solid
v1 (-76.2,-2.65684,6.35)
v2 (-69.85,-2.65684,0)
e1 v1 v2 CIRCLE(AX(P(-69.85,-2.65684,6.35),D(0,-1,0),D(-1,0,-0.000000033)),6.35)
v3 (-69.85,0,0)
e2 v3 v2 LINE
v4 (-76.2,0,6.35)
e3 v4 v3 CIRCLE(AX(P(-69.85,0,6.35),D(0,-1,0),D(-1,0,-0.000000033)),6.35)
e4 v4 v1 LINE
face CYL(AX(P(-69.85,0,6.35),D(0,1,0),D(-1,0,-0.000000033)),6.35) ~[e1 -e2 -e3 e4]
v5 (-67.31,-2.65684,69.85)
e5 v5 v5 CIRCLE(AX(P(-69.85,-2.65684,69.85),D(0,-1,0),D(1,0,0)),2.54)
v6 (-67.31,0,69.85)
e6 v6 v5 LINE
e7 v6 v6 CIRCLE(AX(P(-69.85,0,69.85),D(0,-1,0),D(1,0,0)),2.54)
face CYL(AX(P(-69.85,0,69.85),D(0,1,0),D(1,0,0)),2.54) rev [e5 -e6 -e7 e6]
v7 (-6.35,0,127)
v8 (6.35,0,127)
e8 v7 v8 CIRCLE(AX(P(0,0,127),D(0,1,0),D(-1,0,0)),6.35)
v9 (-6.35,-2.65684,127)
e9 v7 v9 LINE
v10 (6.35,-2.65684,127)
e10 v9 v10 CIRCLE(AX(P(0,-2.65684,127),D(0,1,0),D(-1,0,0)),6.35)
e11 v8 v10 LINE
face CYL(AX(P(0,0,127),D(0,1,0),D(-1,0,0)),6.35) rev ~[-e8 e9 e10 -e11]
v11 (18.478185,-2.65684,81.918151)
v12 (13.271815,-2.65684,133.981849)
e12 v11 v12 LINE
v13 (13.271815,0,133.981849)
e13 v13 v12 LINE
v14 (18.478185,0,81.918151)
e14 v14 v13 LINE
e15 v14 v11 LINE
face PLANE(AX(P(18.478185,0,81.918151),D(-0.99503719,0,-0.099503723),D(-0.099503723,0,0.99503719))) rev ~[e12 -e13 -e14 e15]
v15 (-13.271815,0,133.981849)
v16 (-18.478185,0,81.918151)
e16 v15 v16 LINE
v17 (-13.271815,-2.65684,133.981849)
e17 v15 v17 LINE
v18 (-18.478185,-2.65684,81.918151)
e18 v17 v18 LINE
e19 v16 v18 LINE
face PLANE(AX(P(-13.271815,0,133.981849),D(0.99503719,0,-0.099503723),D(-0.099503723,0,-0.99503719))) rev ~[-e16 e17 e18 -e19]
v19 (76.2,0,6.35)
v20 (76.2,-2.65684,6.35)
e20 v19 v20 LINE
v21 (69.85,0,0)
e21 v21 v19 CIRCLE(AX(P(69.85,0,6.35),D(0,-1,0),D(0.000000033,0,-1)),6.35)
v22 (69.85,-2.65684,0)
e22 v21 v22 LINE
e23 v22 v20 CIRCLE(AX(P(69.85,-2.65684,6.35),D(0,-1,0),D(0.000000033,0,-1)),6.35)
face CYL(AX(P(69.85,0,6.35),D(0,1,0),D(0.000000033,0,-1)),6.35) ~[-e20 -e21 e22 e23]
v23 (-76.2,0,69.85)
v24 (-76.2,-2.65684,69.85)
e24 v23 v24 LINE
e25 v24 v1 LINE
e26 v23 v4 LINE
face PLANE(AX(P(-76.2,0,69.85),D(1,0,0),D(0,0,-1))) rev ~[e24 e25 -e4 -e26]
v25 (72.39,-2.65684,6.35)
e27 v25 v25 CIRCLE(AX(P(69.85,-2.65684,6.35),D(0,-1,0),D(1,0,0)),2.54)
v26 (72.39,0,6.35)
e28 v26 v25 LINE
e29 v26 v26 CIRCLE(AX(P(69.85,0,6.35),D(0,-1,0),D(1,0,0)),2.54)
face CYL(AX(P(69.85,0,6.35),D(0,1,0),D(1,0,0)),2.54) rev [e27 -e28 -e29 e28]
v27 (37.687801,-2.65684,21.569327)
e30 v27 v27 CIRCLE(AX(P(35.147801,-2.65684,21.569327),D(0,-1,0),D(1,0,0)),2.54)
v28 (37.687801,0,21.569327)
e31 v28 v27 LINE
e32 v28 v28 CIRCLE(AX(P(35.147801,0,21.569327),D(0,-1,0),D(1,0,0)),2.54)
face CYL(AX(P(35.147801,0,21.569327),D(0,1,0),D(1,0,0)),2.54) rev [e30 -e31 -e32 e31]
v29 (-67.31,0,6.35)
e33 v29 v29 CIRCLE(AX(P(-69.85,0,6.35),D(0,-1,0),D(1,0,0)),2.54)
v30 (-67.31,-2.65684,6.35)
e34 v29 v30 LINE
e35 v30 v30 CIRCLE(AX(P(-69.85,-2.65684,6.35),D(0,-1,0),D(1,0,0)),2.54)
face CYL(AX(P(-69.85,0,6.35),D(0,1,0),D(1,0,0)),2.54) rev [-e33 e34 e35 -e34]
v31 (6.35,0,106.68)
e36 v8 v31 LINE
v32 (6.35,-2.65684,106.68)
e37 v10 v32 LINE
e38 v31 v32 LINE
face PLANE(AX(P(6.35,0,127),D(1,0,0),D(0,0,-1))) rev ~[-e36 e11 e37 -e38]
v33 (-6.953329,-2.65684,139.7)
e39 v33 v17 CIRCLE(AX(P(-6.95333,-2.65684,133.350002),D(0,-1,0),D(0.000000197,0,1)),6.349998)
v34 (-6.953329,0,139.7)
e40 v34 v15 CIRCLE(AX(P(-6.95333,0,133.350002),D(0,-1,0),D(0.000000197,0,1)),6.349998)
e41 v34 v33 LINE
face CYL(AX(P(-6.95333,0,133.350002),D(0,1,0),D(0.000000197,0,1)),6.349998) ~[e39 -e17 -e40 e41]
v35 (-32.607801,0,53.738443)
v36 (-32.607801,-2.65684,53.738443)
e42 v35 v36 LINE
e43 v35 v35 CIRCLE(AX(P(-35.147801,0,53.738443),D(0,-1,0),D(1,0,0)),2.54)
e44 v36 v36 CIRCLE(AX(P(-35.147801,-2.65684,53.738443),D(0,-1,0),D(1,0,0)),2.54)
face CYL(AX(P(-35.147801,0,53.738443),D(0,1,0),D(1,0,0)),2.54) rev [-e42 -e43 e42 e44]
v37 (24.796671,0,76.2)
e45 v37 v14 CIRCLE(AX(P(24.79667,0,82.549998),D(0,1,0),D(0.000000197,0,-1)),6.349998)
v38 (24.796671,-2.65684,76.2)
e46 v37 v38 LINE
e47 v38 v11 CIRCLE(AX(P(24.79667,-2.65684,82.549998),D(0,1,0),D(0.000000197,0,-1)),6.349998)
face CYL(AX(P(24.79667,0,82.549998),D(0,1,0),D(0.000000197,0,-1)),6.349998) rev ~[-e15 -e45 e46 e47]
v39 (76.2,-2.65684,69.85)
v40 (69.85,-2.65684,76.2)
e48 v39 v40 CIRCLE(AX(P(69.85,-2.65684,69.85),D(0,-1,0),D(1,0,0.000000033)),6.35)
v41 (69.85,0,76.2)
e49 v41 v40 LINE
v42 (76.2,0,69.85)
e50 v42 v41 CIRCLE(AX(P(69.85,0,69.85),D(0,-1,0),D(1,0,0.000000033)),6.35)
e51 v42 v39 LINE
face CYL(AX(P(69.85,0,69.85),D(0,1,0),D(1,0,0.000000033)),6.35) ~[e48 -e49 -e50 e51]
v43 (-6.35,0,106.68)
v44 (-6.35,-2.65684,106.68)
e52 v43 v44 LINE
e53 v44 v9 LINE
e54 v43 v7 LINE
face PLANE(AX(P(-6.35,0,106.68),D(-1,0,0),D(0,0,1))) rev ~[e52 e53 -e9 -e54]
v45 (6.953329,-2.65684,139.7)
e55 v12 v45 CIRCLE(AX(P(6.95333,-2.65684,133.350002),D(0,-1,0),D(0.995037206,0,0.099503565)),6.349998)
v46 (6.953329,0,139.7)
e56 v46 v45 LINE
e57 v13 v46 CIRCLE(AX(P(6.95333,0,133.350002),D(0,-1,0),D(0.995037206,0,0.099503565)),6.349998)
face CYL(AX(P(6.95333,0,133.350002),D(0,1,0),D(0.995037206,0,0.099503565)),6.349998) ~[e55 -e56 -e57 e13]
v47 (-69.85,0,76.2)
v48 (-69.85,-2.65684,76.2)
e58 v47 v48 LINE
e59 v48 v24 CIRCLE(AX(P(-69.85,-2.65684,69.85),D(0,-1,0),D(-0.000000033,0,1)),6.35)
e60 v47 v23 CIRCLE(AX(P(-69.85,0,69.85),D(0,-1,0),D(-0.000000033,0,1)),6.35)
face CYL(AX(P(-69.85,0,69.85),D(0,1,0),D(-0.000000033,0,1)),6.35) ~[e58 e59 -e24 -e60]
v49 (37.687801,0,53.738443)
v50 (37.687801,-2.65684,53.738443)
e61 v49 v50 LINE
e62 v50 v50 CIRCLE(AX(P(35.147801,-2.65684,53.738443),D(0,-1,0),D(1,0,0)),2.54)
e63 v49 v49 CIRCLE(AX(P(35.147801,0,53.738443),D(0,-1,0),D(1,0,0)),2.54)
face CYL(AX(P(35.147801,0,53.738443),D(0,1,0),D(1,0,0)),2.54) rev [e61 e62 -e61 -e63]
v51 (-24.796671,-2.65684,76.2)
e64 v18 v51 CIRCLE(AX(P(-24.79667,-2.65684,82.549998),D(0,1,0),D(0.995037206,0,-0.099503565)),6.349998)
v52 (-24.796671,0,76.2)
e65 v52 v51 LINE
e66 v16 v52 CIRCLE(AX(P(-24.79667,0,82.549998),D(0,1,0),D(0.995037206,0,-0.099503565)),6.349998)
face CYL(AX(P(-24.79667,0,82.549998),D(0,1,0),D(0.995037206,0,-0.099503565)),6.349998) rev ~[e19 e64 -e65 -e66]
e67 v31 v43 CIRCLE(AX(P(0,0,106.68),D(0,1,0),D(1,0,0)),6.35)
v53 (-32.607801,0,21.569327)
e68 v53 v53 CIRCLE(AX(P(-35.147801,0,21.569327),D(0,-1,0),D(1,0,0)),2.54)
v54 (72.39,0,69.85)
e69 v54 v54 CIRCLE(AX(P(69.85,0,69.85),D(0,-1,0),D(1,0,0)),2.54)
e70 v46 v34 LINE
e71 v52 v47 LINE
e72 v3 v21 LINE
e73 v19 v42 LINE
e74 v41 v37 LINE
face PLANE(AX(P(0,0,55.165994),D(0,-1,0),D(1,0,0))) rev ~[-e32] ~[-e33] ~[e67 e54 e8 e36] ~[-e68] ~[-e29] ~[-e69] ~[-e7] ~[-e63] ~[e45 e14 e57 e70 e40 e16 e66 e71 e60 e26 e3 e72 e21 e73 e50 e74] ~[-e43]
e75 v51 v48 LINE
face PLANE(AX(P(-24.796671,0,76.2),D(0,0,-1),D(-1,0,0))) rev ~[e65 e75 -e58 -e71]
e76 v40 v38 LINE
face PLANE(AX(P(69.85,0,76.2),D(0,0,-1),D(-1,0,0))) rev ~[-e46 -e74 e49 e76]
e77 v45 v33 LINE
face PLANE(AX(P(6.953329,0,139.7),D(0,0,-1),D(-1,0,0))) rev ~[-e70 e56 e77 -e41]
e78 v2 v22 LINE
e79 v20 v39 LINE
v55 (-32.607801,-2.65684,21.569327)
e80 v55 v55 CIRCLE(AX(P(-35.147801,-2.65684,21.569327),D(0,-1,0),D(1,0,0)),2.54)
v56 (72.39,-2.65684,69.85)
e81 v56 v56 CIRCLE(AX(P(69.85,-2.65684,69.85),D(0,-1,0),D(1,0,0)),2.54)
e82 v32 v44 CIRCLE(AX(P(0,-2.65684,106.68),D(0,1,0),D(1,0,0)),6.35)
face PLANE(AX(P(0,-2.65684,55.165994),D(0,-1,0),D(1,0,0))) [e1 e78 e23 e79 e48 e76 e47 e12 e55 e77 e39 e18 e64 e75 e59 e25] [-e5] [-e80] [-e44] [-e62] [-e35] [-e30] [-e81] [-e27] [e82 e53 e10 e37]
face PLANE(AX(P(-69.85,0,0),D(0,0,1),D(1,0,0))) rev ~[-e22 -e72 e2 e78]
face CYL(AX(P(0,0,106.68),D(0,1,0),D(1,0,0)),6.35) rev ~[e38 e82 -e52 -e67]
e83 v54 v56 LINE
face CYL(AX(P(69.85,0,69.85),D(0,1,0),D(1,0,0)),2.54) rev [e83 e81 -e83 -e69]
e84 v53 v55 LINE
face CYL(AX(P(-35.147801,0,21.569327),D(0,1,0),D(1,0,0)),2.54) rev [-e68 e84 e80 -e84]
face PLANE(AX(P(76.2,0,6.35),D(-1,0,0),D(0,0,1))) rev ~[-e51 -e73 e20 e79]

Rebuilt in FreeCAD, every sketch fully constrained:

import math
import FreeCAD as App
import Part
import Sketcher
Q = App.Units.Quantity

doc = App.newDocument("Part")
body = doc.addObject("PartDesign::Body", "Body")

# Sketch on XZ plane
sketch1 = doc.addObject("Sketcher::SketchObject", "Sketch")
body.addObject(sketch1)
sketch1.AttachmentSupport = (doc.XZ_Plane, [""])
sketch1.MapMode = "FlatFace"
sketch1.addGeometry(Part.LineSegment(App.Vector(-69.8, 0, 0), App.Vector(69.8, 0, 0)), False)
sketch1.addGeometry(Part.ArcOfCircle(Part.Circle(App.Vector(69.8, 6.4, 0), App.Vector(0, 0, 1), 6.4), math.radians(-90), math.radians(0)), False)
sketch1.addGeometry(Part.LineSegment(App.Vector(76.2, 6.3, 0), App.Vector(76.2, 69.8, 0)), False)
sketch1.addGeometry(Part.ArcOfCircle(Part.Circle(App.Vector(69.8, 69.8, 0), App.Vector(0, 0, 1), 6.4), math.radians(0), math.radians(90)), False)
sketch1.addGeometry(Part.LineSegment(App.Vector(69.8, 76.2, 0), App.Vector(24.8, 76.2, 0)), False)
sketch1.addGeometry(Part.ArcOfCircle(Part.Circle(App.Vector(24.8, 82.5, 0), App.Vector(0, 0, 1), 6.3), math.radians(-174), math.radians(-90)), False)
sketch1.addGeometry(Part.LineSegment(App.Vector(18.5, 81.9, 0), App.Vector(13.3, 134, 0)), False)
sketch1.addGeometry(Part.ArcOfCircle(Part.Circle(App.Vector(7, 133.4, 0), App.Vector(0, 0, 1), 6.3), math.radians(6), math.radians(90)), False)
sketch1.addGeometry(Part.LineSegment(App.Vector(7, 139.7, 0), App.Vector(-7, 139.7, 0)), False)
sketch1.addGeometry(Part.ArcOfCircle(Part.Circle(App.Vector(-7, 133.4, 0), App.Vector(0, 0, 1), 6.3), math.radians(90), math.radians(174)), False)
sketch1.addGeometry(Part.LineSegment(App.Vector(-13.3, 134, 0), App.Vector(-18.5, 81.9, 0)), False)
sketch1.addGeometry(Part.ArcOfCircle(Part.Circle(App.Vector(-24.8, 82.5, 0), App.Vector(0, 0, 1), 6.3), math.radians(-90), math.radians(-6)), False)
sketch1.addGeometry(Part.LineSegment(App.Vector(-24.8, 76.2, 0), App.Vector(-69.8, 76.2, 0)), False)
sketch1.addGeometry(Part.ArcOfCircle(Part.Circle(App.Vector(-69.8, 69.8, 0), App.Vector(0, 0, 1), 6.4), math.radians(90), math.radians(180)), False)
sketch1.addGeometry(Part.LineSegment(App.Vector(-76.2, 69.8, 0), App.Vector(-76.2, 6.3, 0)), False)
sketch1.addGeometry(Part.ArcOfCircle(Part.Circle(App.Vector(-69.8, 6.4, 0), App.Vector(0, 0, 1), 6.4), math.radians(-180), math.radians(-90)), False)
sketch1.addGeometry(Part.Circle(App.Vector(-69.8, 6.3, 0), App.Vector(0, 0, 1), 2.5), False)
sketch1.addGeometry(Part.Circle(App.Vector(-35.1, 21.6, 0), App.Vector(0, 0, 1), 2.5), False)
sketch1.addGeometry(Part.Circle(App.Vector(-35.1, 53.7, 0), App.Vector(0, 0, 1), 2.5), False)
sketch1.addGeometry(Part.Circle(App.Vector(35.1, 21.6, 0), App.Vector(0, 0, 1), 2.5), False)
sketch1.addGeometry(Part.Circle(App.Vector(69.8, 6.3, 0), App.Vector(0, 0, 1), 2.5), False)
sketch1.addGeometry(Part.Circle(App.Vector(35.1, 53.7, 0), App.Vector(0, 0, 1), 2.5), False)
sketch1.addGeometry(Part.Circle(App.Vector(-69.8, 69.8, 0), App.Vector(0, 0, 1), 2.5), False)
sketch1.addGeometry(Part.Circle(App.Vector(69.8, 69.8, 0), App.Vector(0, 0, 1), 2.5), False)
sketch1.addGeometry(Part.ArcOfCircle(Part.Circle(App.Vector(0, 106.7, 0), App.Vector(0, 0, 1), 6.3), math.radians(180), math.radians(360)), False)
sketch1.addGeometry(Part.LineSegment(App.Vector(-6.3, 106.7, 0), App.Vector(-6.3, 127, 0)), False)
sketch1.addGeometry(Part.ArcOfCircle(Part.Circle(App.Vector(0, 127, 0), App.Vector(0, 0, 1), 6.3), math.radians(0), math.radians(180)), False)
sketch1.addGeometry(Part.LineSegment(App.Vector(6.3, 127, 0), App.Vector(6.3, 106.7, 0)), False)
sketch1.addConstraint(Sketcher.Constraint("Tangent", 0, 2, 1, 1))
sketch1.addConstraint(Sketcher.Constraint("Tangent", 1, 2, 2, 1))
sketch1.addConstraint(Sketcher.Constraint("Tangent", 2, 2, 3, 1))
sketch1.addConstraint(Sketcher.Constraint("Tangent", 3, 2, 4, 1))
sketch1.addConstraint(Sketcher.Constraint("Tangent", 4, 2, 5, 2))
sketch1.addConstraint(Sketcher.Constraint("Tangent", 5, 1, 6, 1))
sketch1.addConstraint(Sketcher.Constraint("Tangent", 6, 2, 7, 1))
sketch1.addConstraint(Sketcher.Constraint("Tangent", 7, 2, 8, 1))
sketch1.addConstraint(Sketcher.Constraint("Tangent", 8, 2, 9, 1))
sketch1.addConstraint(Sketcher.Constraint("Tangent", 9, 2, 10, 1))
sketch1.addConstraint(Sketcher.Constraint("Tangent", 10, 2, 11, 2))
sketch1.addConstraint(Sketcher.Constraint("Tangent", 11, 1, 12, 1))
sketch1.addConstraint(Sketcher.Constraint("Tangent", 12, 2, 13, 1))
sketch1.addConstraint(Sketcher.Constraint("Tangent", 13, 2, 14, 1))
sketch1.addConstraint(Sketcher.Constraint("Tangent", 14, 2, 15, 1))
sketch1.addConstraint(Sketcher.Constraint("Tangent", 15, 2, 0, 1))
sketch1.addConstraint(Sketcher.Constraint("Tangent", 24, 1, 25, 1))
sketch1.addConstraint(Sketcher.Constraint("Tangent", 25, 2, 26, 2))
sketch1.addConstraint(Sketcher.Constraint("Tangent", 26, 1, 27, 1))
sketch1.addConstraint(Sketcher.Constraint("Tangent", 27, 2, 24, 2))
sketch1.addConstraint(Sketcher.Constraint("Horizontal", 0))
sketch1.addConstraint(Sketcher.Constraint("Vertical", 2))
sketch1.addConstraint(Sketcher.Constraint("Horizontal", 4))
sketch1.addConstraint(Sketcher.Constraint("Horizontal", 8))
sketch1.addConstraint(Sketcher.Constraint("Horizontal", 12))
sketch1.addConstraint(Sketcher.Constraint("Vertical", 14))
sketch1.addConstraint(Sketcher.Constraint("Vertical", 25))
sketch1.addConstraint(Sketcher.Constraint("Vertical", 27))
sketch1.addConstraint(Sketcher.Constraint("Coincident", 16, 3, 15, 3))
sketch1.addConstraint(Sketcher.Constraint("Coincident", 20, 3, 1, 3))
sketch1.addConstraint(Sketcher.Constraint("Coincident", 22, 3, 13, 3))
sketch1.addConstraint(Sketcher.Constraint("Coincident", 23, 3, 3, 3))
sketch1.addConstraint(Sketcher.Constraint("Equal", 1, 3))
sketch1.addConstraint(Sketcher.Constraint("Equal", 3, 5))
sketch1.addConstraint(Sketcher.Constraint("Equal", 5, 7))
sketch1.addConstraint(Sketcher.Constraint("Equal", 7, 9))
sketch1.addConstraint(Sketcher.Constraint("Equal", 9, 11))
sketch1.addConstraint(Sketcher.Constraint("Equal", 11, 13))
sketch1.addConstraint(Sketcher.Constraint("Equal", 13, 15))
sketch1.addConstraint(Sketcher.Constraint("Equal", 16, 17))
sketch1.addConstraint(Sketcher.Constraint("Equal", 17, 18))
sketch1.addConstraint(Sketcher.Constraint("Equal", 18, 19))
sketch1.addConstraint(Sketcher.Constraint("Equal", 19, 20))
sketch1.addConstraint(Sketcher.Constraint("Equal", 20, 21))
sketch1.addConstraint(Sketcher.Constraint("Equal", 21, 22))
sketch1.addConstraint(Sketcher.Constraint("Equal", 22, 23))
sketch1.addConstraint(Sketcher.Constraint("Equal", 15, 24))
sketch1.addConstraint(Sketcher.Constraint("Symmetric", 0, 2, 15, 2, -1, 1))
sketch1.addConstraint(Sketcher.Constraint("Symmetric", 5, 3, 11, 3, -2))
sketch1.addConstraint(Sketcher.Constraint("Symmetric", 17, 3, 19, 3, -2))
sketch1.addConstraint(Sketcher.Constraint("Symmetric", 18, 3, 21, 3, -2))
sketch1.addConstraint(Sketcher.Constraint("PointOnObject", 24, 3, -2))
sketch1.addConstraint(Sketcher.Constraint("Horizontal", 6, 2, 9, 2))
sketch1.addConstraint(Sketcher.Constraint("Vertical", 17, 3, 18, 3))
sketch1.addConstraint(Sketcher.Constraint("Diameter", 16, Q("0.2 in")))
sketch1.addConstraint(Sketcher.Constraint("Radius", 1, Q("0.25 in")))
sketch1.addConstraint(Sketcher.Constraint("DistanceX", 0, 1, 0, 2, Q("5.5 in")))
sketch1.addConstraint(Sketcher.Constraint("DistanceY", 2, 1, 2, 2, Q("2.5 in")))
sketch1.addConstraint(Sketcher.Constraint("DistanceY", 25, 1, 25, 2, Q("0.8 in")))
sketch1.addConstraint(Sketcher.Constraint("DistanceY", -1, 1, 26, 3, Q("5 in")))
sketch1.addConstraint(Sketcher.Constraint("DistanceY", 5, 3, 7, 3, Q("2.0000001 in")))
sketch1.addConstraint(Sketcher.Constraint("DistanceX", 9, 3, 5, 3, Q("1.25 in")))
sketch1.addConstraint(Sketcher.Constraint("DistanceX", 4, 2, 4, 1, Q("45.053329 mm")))
sketch1.addConstraint(Sketcher.Constraint("DistanceX", 17, 3, -1, 1, Q("35.147801 mm")))
sketch1.addConstraint(Sketcher.Constraint("DistanceY", 17, 3, 11, 3, Q("60.980671 mm")))
sketch1.addConstraint(Sketcher.Constraint("DistanceY", 21, 3, 5, 1, Q("28.179708 mm")))
pad1 = doc.addObject("PartDesign::Pad", "Pad")
body.addObject(pad1)
pad1.Profile = sketch1
pad1.Length = Q("0.1046 in")

doc.recompute()
